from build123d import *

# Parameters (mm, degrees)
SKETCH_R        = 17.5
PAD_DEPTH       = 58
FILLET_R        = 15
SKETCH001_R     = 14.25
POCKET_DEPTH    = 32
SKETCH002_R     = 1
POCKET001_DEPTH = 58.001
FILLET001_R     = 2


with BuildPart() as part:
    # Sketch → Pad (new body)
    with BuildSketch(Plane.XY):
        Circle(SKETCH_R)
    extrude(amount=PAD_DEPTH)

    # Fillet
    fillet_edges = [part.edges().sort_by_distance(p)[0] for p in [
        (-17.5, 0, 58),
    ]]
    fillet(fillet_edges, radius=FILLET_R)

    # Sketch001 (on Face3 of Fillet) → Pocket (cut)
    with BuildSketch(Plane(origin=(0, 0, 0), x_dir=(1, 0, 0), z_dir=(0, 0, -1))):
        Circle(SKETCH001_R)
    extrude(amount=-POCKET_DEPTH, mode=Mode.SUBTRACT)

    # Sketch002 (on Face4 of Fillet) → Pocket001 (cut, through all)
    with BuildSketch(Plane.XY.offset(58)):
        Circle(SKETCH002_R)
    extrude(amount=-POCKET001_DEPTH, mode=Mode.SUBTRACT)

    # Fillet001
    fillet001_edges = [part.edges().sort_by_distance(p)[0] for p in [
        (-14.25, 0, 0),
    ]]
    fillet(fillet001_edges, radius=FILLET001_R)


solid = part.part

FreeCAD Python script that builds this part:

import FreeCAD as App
import Part
import Sketcher

V = App.Vector


def edges_at(feature, points):
    """Names of the edges that pass closest to the given points."""
    edges = feature.Shape.Edges
    near = lambda p: min(range(len(edges)), key=lambda i: edges[i].distToShape(Part.Vertex(*p))[0])
    return sorted({f"Edge{near(p) + 1}" for p in points})

doc = App.newDocument("Part")
params = doc.addObject("Spreadsheet::Sheet", "Params")
for row, (alias, value) in enumerate([
    ("sketch1_diameter", "35 mm"),
    ("pad1_length", "58 mm"),
    ("fillet_radius", "15 mm"),
    ("sketch2_diameter", "28.5 mm"),
    ("pocket1_length", "32 mm"),
    ("sketch3_diameter", "2 mm"),
    ("fillet2_radius", "2 mm"),
], start=1):
    params.set(f"A{row}", alias)
    params.set(f"B{row}", "=" + value)
    params.setAlias(f"B{row}", alias)

body = doc.addObject("PartDesign::Body", "Body")

sketch1 = doc.addObject("Sketcher::SketchObject", "Sketch")
body.addObject(sketch1)
sketch1.AttachmentSupport = (doc.XY_Plane, [""])
sketch1.MapMode = "FlatFace"
sketch1.addGeometry(Part.Circle(V(0, 0, 0), V(0, 0, 1), 18), False)
sketch1.addConstraint([
    Sketcher.Constraint("Coincident", 0, 3, -1, 1),
    Sketcher.Constraint("Diameter", 0, 35.0),
])
sketch1.setExpression("Constraints[1]", "Params.sketch1_diameter")
pad1 = doc.addObject("PartDesign::Pad", "Pad")
body.addObject(pad1)
pad1.Profile = sketch1
pad1.setExpression("Length", "Params.pad1_length")
doc.recompute()

fillet = doc.addObject("PartDesign::Fillet", "Fillet")
body.addObject(fillet)
fillet.Base = (pad1, edges_at(pad1, [(-17.5, 0, 58)]))
fillet.setExpression("Radius", "Params.fillet_radius")

sketch2 = doc.addObject("Sketcher::SketchObject", "Sketch001")
body.addObject(sketch2)
sketch2.AttachmentSupport = (doc.XY_Plane, [""])
sketch2.MapMode = "FlatFace"
sketch2.addGeometry(Part.Circle(V(0, 0, 0), V(0, 0, 1), 14), False)
sketch2.addConstraint([
    Sketcher.Constraint("Coincident", 0, 3, -1, 1),
    Sketcher.Constraint("Diameter", 0, 28.5),
])
sketch2.setExpression("Constraints[1]", "Params.sketch2_diameter")
pocket1 = doc.addObject("PartDesign::Pocket", "Pocket")
body.addObject(pocket1)
pocket1.Profile = sketch2
pocket1.setExpression("Length", "Params.pocket1_length")
pocket1.Reversed = True

sketch3 = doc.addObject("Sketcher::SketchObject", "Sketch002")
body.addObject(sketch3)
sketch3.AttachmentSupport = (doc.XY_Plane, [""])
sketch3.MapMode = "FlatFace"
sketch3.AttachmentOffset = App.Placement(V(0, 0, 58), App.Rotation())
sketch3.addGeometry(Part.Circle(V(0, 0, 0), V(0, 0, 1), 1), False)
sketch3.addConstraint([
    Sketcher.Constraint("Coincident", 0, 3, -1, 1),
    Sketcher.Constraint("Diameter", 0, 2.0),
])
sketch3.setExpression("Constraints[1]", "Params.sketch3_diameter")
pocket2 = doc.addObject("PartDesign::Pocket", "Pocket001")
body.addObject(pocket2)
pocket2.Profile = sketch3
pocket2.Type = "ThroughAll"
doc.recompute()

fillet2 = doc.addObject("PartDesign::Fillet", "Fillet001")
body.addObject(fillet2)
fillet2.Base = (pocket2, edges_at(pocket2, [(-14.25, 0, 0)]))
fillet2.setExpression("Radius", "Params.fillet2_radius")

doc.recompute()
